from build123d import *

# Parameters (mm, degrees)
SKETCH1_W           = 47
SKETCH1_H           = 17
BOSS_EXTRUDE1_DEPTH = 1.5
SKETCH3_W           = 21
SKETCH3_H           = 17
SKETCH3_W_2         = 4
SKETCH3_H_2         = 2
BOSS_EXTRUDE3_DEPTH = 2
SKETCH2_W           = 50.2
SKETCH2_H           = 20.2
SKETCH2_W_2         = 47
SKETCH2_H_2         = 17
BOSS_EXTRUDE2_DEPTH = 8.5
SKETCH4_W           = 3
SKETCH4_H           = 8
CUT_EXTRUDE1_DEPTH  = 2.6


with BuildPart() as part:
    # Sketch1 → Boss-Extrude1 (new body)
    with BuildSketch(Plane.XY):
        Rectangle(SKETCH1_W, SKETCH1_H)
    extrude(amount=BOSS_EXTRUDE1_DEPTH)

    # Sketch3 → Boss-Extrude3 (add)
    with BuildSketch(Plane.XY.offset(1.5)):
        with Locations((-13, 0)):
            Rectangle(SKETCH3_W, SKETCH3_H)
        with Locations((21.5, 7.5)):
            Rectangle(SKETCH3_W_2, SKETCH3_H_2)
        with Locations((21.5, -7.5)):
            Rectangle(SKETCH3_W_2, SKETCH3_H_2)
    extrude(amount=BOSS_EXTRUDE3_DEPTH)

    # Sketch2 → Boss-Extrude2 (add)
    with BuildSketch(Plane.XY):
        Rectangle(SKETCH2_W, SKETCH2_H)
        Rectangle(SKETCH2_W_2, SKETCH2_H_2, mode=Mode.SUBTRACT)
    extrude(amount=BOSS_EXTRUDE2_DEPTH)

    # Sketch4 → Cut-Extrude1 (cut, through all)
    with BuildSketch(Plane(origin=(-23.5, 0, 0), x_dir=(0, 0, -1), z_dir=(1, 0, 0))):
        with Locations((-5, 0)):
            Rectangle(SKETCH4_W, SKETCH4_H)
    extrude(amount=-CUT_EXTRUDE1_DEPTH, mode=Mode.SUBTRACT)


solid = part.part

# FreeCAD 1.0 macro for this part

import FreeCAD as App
import Part
import Sketcher

V = App.Vector

doc = App.newDocument("Part")
params = doc.addObject("Spreadsheet::Sheet", "Params")
for row, (alias, value) in enumerate([
    ("sketch1_width", "47 mm"),
    ("sketch1_height", "17 mm"),
    ("pad1_length", "1.5 mm"),
    ("sketch2_width", "21 mm"),
    ("sketch2_width2", "4 mm"),
    ("sketch2_height", "17 mm"),
    ("sketch2_height2", "2 mm"),
    ("pad2_length", "2 mm"),
    ("sketch3_width", "47 mm"),
    ("sketch3_height", "17 mm"),
    ("sketch3_width2", "50.2 mm"),
    ("sketch3_height2", "20.2 mm"),
    ("pad3_length", "8.5 mm"),
    ("sketch4_width", "8 mm"),
    ("sketch4_height", "3 mm"),
], start=1):
    params.set(f"A{row}", alias)
    params.set(f"B{row}", "=" + value)
    params.setAlias(f"B{row}", alias)

body = doc.addObject("PartDesign::Body", "Body")

sketch1 = body.newObject("Sketcher::SketchObject", "Sketch")
sketch1.AttachmentSupport = (doc.getObject("XY_Plane"), [""])
sketch1.MapMode = "FlatFace"
sketch1.addGeometry(Part.LineSegment(V(-24, 8, 0), V(-24, -8, 0)), False)
sketch1.addGeometry(Part.LineSegment(V(-24, -8, 0), V(24, -8, 0)), False)
sketch1.addGeometry(Part.LineSegment(V(24, -8, 0), V(24, 8, 0)), False)
sketch1.addGeometry(Part.LineSegment(V(24, 8, 0), V(-24, 8, 0)), False)
sketch1.addConstraint(Sketcher.Constraint("Coincident", 0, 2, 1, 1))
sketch1.addConstraint(Sketcher.Constraint("Coincident", 1, 2, 2, 1))
sketch1.addConstraint(Sketcher.Constraint("Coincident", 2, 2, 3, 1))
sketch1.addConstraint(Sketcher.Constraint("Coincident", 3, 2, 0, 1))
sketch1.addConstraint(Sketcher.Constraint("Vertical", 0))
sketch1.addConstraint(Sketcher.Constraint("Horizontal", 1))
sketch1.addConstraint(Sketcher.Constraint("Vertical", 2))
sketch1.addConstraint(Sketcher.Constraint("Horizontal", 3))
sketch1.addConstraint(Sketcher.Constraint("Symmetric", 0, 2, 2, 2, -1, 1))
sketch1.addConstraint(Sketcher.Constraint("DistanceX", 1, 1, 1, 2, 47.0))
sketch1.addConstraint(Sketcher.Constraint("DistanceY", 0, 2, 0, 1, 17.0))
sketch1.setExpression("Constraints[9]", "Params.sketch1_width")
sketch1.setExpression("Constraints[10]", "Params.sketch1_height")
pad1 = body.newObject("PartDesign::Pad", "Pad")
pad1.Profile = sketch1
pad1.setExpression("Length", "Params.pad1_length")

sketch2 = body.newObject("Sketcher::SketchObject", "Sketch001")
sketch2.AttachmentSupport = (doc.getObject("XY_Plane"), [""])
sketch2.MapMode = "FlatFace"
sketch2.AttachmentOffset = App.Placement(V(0, 0, 1.5), App.Rotation())
sketch2.addGeometry(Part.LineSegment(V(-23.5, 8.5, 0), V(-23.5, -8.5, 0)), False)
sketch2.addGeometry(Part.LineSegment(V(-23.5, -8.5, 0), V(-2.5, -8.5, 0)), False)
sketch2.addGeometry(Part.LineSegment(V(-2.5, -8.5, 0), V(-2.5, 8.5, 0)), False)
sketch2.addGeometry(Part.LineSegment(V(-2.5, 8.5, 0), V(-23.5, 8.5, 0)), False)
sketch2.addGeometry(Part.LineSegment(V(19.5, 8.5, 0), V(19.5, 6.5, 0)), False)
sketch2.addGeometry(Part.LineSegment(V(19.5, 6.5, 0), V(23.5, 6.5, 0)), False)
sketch2.addGeometry(Part.LineSegment(V(23.5, 6.5, 0), V(23.5, 8.5, 0)), False)
sketch2.addGeometry(Part.LineSegment(V(23.5, 8.5, 0), V(19.5, 8.5, 0)), False)
sketch2.addGeometry(Part.LineSegment(V(19.5, -6.5, 0), V(19.5, -8.5, 0)), False)
sketch2.addGeometry(Part.LineSegment(V(19.5, -8.5, 0), V(23.5, -8.5, 0)), False)
sketch2.addGeometry(Part.LineSegment(V(23.5, -8.5, 0), V(23.5, -6.5, 0)), False)
sketch2.addGeometry(Part.LineSegment(V(23.5, -6.5, 0), V(19.5, -6.5, 0)), False)
sketch2.addConstraint(Sketcher.Constraint("Coincident", 0, 2, 1, 1))
sketch2.addConstraint(Sketcher.Constraint("Coincident", 1, 2, 2, 1))
sketch2.addConstraint(Sketcher.Constraint("Coincident", 2, 2, 3, 1))
sketch2.addConstraint(Sketcher.Constraint("Coincident", 3, 2, 0, 1))
sketch2.addConstraint(Sketcher.Constraint("Coincident", 4, 2, 5, 1))
sketch2.addConstraint(Sketcher.Constraint("Coincident", 5, 2, 6, 1))
sketch2.addConstraint(Sketcher.Constraint("Coincident", 6, 2, 7, 1))
sketch2.addConstraint(Sketcher.Constraint("Coincident", 7, 2, 4, 1))
sketch2.addConstraint(Sketcher.Constraint("Coincident", 8, 2, 9, 1))
sketch2.addConstraint(Sketcher.Constraint("Coincident", 9, 2, 10, 1))
sketch2.addConstraint(Sketcher.Constraint("Coincident", 10, 2, 11, 1))
sketch2.addConstraint(Sketcher.Constraint("Coincident", 11, 2, 8, 1))
sketch2.addConstraint(Sketcher.Constraint("Vertical", 0))
sketch2.addConstraint(Sketcher.Constraint("Horizontal", 1))
sketch2.addConstraint(Sketcher.Constraint("Vertical", 2))
sketch2.addConstraint(Sketcher.Constraint("Horizontal", 3))
sketch2.addConstraint(Sketcher.Constraint("Vertical", 4))
sketch2.addConstraint(Sketcher.Constraint("Horizontal", 5))
sketch2.addConstraint(Sketcher.Constraint("Vertical", 6))
sketch2.addConstraint(Sketcher.Constraint("Horizontal", 7))
sketch2.addConstraint(Sketcher.Constraint("Vertical", 8))
sketch2.addConstraint(Sketcher.Constraint("Horizontal", 9))
sketch2.addConstraint(Sketcher.Constraint("Vertical", 10))
sketch2.addConstraint(Sketcher.Constraint("Horizontal", 11))
sketch2.addConstraint(Sketcher.Constraint("Symmetric", 0, 2, 6, 2, -1, 1))
sketch2.addConstraint(Sketcher.Constraint("Symmetric", 3, 2, 9, 2, -1, 1))
sketch2.addConstraint(Sketcher.Constraint("Symmetric", 7, 2, 8, 2, -1))
sketch2.addConstraint(Sketcher.Constraint("Equal", 6, 8))
sketch2.addConstraint(Sketcher.Constraint("DistanceX", 1, 1, 1, 2, 21.0))
sketch2.addConstraint(Sketcher.Constraint("DistanceX", 5, 1, 5, 2, 4.0))
sketch2.addConstraint(Sketcher.Constraint("DistanceY", 0, 2, 0, 1, 17.0))
sketch2.addConstraint(Sketcher.Constraint("DistanceY", 4, 2, 4, 1, 2.0))
sketch2.addConstraint(Sketcher.Constraint("DistanceX", 2, 2, 4, 2, 22.0))
sketch2.setExpression("Constraints[28]", "Params.sketch2_width")
sketch2.setExpression("Constraints[29]", "Params.sketch2_width2")
sketch2.setExpression("Constraints[30]", "Params.sketch2_height")
sketch2.setExpression("Constraints[31]", "Params.sketch2_height2")
pad2 = body.newObject("PartDesign::Pad", "Pad001")
pad2.Profile = sketch2
pad2.setExpression("Length", "Params.pad2_length")

sketch3 = body.newObject("Sketcher::SketchObject", "Sketch002")
sketch3.AttachmentSupport = (doc.getObject("XY_Plane"), [""])
sketch3.MapMode = "FlatFace"
sketch3.addGeometry(Part.LineSegment(V(-25, 10, 0), V(-25, -10, 0)), False)
sketch3.addGeometry(Part.LineSegment(V(-25, -10, 0), V(25, -10, 0)), False)
sketch3.addGeometry(Part.LineSegment(V(25, -10, 0), V(25, 10, 0)), False)
sketch3.addGeometry(Part.LineSegment(V(25, 10, 0), V(-25, 10, 0)), False)
sketch3.addGeometry(Part.LineSegment(V(24, -8, 0), V(-24, -8, 0)), False)
sketch3.addGeometry(Part.LineSegment(V(-24, -8, 0), V(-24, 8, 0)), False)
sketch3.addGeometry(Part.LineSegment(V(-24, 8, 0), V(24, 8, 0)), False)
sketch3.addGeometry(Part.LineSegment(V(24, 8, 0), V(24, -8, 0)), False)
sketch3.addConstraint(Sketcher.Constraint("Coincident", 0, 2, 1, 1))
sketch3.addConstraint(Sketcher.Constraint("Coincident", 1, 2, 2, 1))
sketch3.addConstraint(Sketcher.Constraint("Coincident", 2, 2, 3, 1))
sketch3.addConstraint(Sketcher.Constraint("Coincident", 3, 2, 0, 1))
sketch3.addConstraint(Sketcher.Constraint("Coincident", 4, 2, 5, 1))
sketch3.addConstraint(Sketcher.Constraint("Coincident", 5, 2, 6, 1))
sketch3.addConstraint(Sketcher.Constraint("Coincident", 6, 2, 7, 1))
sketch3.addConstraint(Sketcher.Constraint("Coincident", 7, 2, 4, 1))
sketch3.addConstraint(Sketcher.Constraint("Vertical", 0))
sketch3.addConstraint(Sketcher.Constraint("Horizontal", 1))
sketch3.addConstraint(Sketcher.Constraint("Vertical", 2))
sketch3.addConstraint(Sketcher.Constraint("Horizontal", 3))
sketch3.addConstraint(Sketcher.Constraint("Horizontal", 4))
sketch3.addConstraint(Sketcher.Constraint("Vertical", 5))
sketch3.addConstraint(Sketcher.Constraint("Horizontal", 6))
sketch3.addConstraint(Sketcher.Constraint("Vertical", 7))
sketch3.addConstraint(Sketcher.Constraint("Symmetric", 0, 2, 2, 2, -1, 1))
sketch3.addConstraint(Sketcher.Constraint("Symmetric", 4, 2, 6, 2, -1, 1))
sketch3.addConstraint(Sketcher.Constraint("DistanceX", 4, 2, 4, 1, 47.0))
sketch3.addConstraint(Sketcher.Constraint("DistanceY", 5, 1, 5, 2, 17.0))
sketch3.addConstraint(Sketcher.Constraint("DistanceX", 1, 1, 1, 2, 50.2))
sketch3.addConstraint(Sketcher.Constraint("DistanceY", 0, 2, 0, 1, 20.2))
sketch3.setExpression("Constraints[18]", "Params.sketch3_width")
sketch3.setExpression("Constraints[19]", "Params.sketch3_height")
sketch3.setExpression("Constraints[20]", "Params.sketch3_width2")
sketch3.setExpression("Constraints[21]", "Params.sketch3_height2")
pad3 = body.newObject("PartDesign::Pad", "Pad002")
pad3.Profile = sketch3
pad3.setExpression("Length", "Params.pad3_length")

sketch4 = body.newObject("Sketcher::SketchObject", "Sketch003")
sketch4.AttachmentSupport = (doc.getObject("YZ_Plane"), [""])
sketch4.MapMode = "FlatFace"
sketch4.AttachmentOffset = App.Placement(V(0, 0, -23.5), App.Rotation())
sketch4.addGeometry(Part.LineSegment(V(4, 6.5, 0), V(-4, 6.5, 0)), False)
sketch4.addGeometry(Part.LineSegment(V(-4, 6.5, 0), V(-4, 3.5, 0)), False)
sketch4.addGeometry(Part.LineSegment(V(-4, 3.5, 0), V(4, 3.5, 0)), False)
sketch4.addGeometry(Part.LineSegment(V(4, 3.5, 0), V(4, 6.5, 0)), False)
sketch4.addConstraint(Sketcher.Constraint("Coincident", 0, 2, 1, 1))
sketch4.addConstraint(Sketcher.Constraint("Coincident", 1, 2, 2, 1))
sketch4.addConstraint(Sketcher.Constraint("Coincident", 2, 2, 3, 1))
sketch4.addConstraint(Sketcher.Constraint("Coincident", 3, 2, 0, 1))
sketch4.addConstraint(Sketcher.Constraint("Horizontal", 0))
sketch4.addConstraint(Sketcher.Constraint("Vertical", 1))
sketch4.addConstraint(Sketcher.Constraint("Horizontal", 2))
sketch4.addConstraint(Sketcher.Constraint("Vertical", 3))
sketch4.addConstraint(Sketcher.Constraint("DistanceX", 0, 2, 0, 1, 8.0))
sketch4.addConstraint(Sketcher.Constraint("DistanceY", 1, 2, 1, 1, 3.0))
sketch4.addConstraint(Sketcher.Constraint("DistanceX", 0, 2, -1, 1, 4.0))
sketch4.addConstraint(Sketcher.Constraint("DistanceY", -1, 1, 0, 2, 6.5))
sketch4.setExpression("Constraints[8]", "Params.sketch4_width")
sketch4.setExpression("Constraints[9]", "Params.sketch4_height")
pocket1 = body.newObject("PartDesign::Pocket", "Pocket")
pocket1.Profile = sketch4
pocket1.Type = "ThroughAll"

doc.recompute()
